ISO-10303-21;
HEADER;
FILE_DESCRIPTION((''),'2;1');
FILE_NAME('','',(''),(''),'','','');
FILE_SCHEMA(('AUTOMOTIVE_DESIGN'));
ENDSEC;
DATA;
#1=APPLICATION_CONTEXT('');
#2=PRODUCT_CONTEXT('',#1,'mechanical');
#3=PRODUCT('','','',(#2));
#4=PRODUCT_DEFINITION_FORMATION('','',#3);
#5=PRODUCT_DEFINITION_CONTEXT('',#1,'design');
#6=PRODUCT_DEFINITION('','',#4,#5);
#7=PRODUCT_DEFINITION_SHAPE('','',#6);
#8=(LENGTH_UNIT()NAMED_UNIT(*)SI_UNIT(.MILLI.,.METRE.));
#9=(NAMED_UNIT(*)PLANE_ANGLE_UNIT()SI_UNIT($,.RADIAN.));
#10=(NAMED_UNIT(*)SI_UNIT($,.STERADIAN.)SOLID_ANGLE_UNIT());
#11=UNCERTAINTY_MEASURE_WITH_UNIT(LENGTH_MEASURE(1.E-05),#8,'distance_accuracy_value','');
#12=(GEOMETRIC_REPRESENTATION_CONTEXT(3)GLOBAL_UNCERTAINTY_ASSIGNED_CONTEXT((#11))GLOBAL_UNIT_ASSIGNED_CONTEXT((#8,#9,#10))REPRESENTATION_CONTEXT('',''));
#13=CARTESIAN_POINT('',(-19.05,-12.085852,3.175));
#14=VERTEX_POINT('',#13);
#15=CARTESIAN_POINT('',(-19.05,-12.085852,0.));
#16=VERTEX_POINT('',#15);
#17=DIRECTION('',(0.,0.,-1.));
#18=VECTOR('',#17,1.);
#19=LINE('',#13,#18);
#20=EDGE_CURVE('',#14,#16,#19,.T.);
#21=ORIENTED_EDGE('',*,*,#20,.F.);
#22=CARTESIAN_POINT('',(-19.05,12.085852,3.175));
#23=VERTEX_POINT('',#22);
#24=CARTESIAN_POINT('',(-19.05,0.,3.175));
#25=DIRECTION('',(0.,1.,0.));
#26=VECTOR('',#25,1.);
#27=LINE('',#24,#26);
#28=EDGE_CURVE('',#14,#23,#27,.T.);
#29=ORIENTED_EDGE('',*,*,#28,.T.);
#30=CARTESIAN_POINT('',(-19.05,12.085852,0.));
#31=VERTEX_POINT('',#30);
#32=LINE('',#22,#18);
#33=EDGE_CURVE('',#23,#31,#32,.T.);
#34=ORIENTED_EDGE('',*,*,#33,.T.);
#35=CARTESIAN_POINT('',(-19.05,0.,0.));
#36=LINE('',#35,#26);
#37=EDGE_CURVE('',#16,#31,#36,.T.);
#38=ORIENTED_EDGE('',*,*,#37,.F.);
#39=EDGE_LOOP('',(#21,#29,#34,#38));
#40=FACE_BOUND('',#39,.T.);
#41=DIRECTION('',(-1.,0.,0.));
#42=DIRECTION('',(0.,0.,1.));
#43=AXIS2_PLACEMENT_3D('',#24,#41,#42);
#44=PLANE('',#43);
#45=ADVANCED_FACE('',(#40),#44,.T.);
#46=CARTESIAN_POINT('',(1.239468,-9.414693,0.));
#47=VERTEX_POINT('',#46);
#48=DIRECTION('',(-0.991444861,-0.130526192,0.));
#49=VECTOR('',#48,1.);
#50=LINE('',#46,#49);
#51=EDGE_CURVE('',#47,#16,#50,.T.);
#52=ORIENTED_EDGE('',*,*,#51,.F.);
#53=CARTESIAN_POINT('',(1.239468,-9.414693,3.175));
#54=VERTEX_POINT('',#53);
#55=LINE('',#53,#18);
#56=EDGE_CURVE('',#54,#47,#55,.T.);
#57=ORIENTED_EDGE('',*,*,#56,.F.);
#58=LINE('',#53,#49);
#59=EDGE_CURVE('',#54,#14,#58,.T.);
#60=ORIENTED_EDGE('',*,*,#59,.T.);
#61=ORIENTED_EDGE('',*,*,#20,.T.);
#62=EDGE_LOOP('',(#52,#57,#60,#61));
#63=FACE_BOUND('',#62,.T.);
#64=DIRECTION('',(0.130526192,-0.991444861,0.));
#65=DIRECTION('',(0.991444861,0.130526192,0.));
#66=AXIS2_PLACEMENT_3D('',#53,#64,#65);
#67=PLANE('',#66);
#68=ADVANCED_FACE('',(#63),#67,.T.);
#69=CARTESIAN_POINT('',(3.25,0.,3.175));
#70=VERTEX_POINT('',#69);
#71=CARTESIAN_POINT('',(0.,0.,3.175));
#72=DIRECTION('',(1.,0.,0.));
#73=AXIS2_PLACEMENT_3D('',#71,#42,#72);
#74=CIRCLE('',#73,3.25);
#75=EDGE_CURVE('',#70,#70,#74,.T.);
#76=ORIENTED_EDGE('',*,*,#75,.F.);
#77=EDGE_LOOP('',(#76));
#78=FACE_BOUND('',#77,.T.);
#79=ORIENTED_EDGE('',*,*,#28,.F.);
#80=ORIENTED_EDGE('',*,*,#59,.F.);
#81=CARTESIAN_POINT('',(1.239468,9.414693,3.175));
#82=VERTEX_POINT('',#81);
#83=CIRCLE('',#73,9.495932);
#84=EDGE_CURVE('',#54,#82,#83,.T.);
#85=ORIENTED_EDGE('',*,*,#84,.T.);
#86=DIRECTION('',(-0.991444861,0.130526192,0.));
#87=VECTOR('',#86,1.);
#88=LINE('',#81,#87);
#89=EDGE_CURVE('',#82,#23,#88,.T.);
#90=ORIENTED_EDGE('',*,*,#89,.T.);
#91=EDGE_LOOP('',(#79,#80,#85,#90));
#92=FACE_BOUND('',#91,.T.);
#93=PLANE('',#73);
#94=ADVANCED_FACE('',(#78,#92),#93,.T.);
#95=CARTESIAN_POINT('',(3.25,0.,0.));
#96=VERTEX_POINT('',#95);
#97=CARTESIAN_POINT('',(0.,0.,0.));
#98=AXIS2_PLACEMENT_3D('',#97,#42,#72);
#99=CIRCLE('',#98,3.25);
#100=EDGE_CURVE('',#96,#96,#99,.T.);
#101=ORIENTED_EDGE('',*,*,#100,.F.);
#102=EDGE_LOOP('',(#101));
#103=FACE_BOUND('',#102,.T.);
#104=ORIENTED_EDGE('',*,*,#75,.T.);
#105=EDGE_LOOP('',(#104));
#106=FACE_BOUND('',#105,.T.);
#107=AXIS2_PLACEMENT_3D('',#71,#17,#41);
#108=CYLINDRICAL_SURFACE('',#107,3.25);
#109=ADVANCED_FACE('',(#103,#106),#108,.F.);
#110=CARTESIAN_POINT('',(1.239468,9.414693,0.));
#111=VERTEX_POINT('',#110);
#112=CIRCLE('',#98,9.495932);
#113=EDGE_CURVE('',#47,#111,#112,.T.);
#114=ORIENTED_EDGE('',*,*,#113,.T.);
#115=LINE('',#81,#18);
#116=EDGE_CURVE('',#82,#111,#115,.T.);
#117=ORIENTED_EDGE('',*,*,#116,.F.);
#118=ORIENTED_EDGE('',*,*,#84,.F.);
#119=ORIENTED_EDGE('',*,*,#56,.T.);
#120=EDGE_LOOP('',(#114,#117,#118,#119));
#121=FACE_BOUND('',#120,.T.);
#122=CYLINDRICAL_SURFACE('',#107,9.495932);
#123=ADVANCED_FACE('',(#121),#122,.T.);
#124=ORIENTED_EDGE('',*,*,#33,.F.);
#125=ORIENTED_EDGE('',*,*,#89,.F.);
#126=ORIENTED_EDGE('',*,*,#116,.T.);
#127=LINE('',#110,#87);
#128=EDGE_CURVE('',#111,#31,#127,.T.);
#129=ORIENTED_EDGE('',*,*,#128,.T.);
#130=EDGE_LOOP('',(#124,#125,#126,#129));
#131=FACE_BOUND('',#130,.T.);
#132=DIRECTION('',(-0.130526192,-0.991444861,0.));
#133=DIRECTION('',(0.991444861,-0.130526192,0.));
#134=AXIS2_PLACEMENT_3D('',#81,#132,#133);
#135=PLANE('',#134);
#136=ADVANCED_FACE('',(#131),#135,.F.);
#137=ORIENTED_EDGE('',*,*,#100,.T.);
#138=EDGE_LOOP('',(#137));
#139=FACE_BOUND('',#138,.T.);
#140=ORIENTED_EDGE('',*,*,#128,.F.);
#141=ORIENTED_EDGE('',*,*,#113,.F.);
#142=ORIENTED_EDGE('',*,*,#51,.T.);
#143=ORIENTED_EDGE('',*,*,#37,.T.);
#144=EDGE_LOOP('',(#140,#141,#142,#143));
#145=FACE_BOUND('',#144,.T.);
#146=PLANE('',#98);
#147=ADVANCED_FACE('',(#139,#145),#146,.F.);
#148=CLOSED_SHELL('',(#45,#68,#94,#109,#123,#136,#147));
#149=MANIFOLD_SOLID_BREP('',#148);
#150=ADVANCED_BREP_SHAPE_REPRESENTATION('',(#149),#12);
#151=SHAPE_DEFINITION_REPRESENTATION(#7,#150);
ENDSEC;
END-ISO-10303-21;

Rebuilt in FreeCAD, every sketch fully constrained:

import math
import FreeCAD as App
import Part
import Sketcher

V = App.Vector
Q = App.Units.Quantity

doc = App.newDocument("Part")
body = doc.addObject("PartDesign::Body", "Body")

# Sketch on XY plane
sketch1 = doc.addObject("Sketcher::SketchObject", "Sketch")
body.addObject(sketch1)
sketch1.AttachmentSupport = (doc.XY_Plane, [""])
sketch1.MapMode = "FlatFace"
sketch1.addGeometry([
    Part.LineSegment(V(-19.1, -12.1, 0), V(1.2, -9.4, 0)),  # 0
    Part.ArcOfCircle(Part.Circle(V(0, 0, 0), V(0, 0, 1), 9.5), math.radians(-83), math.radians(83)),  # 1
    Part.LineSegment(V(1.2, 9.4, 0), V(-19.1, 12.1, 0)),  # 2
    Part.LineSegment(V(-19.1, 12.1, 0), V(-19.1, -12.1, 0)),  # 3
    Part.Circle(V(0, 0, 0), V(0, 0, 1), 3.2),  # 4
], False)
sketch1.addConstraint([
    Sketcher.Constraint("Tangent", 0, 2, 1, 1),
    Sketcher.Constraint("Tangent", 1, 2, 2, 1),
    Sketcher.Constraint("Coincident", 2, 2, 3, 1),
    Sketcher.Constraint("Coincident", 3, 2, 0, 1),
    Sketcher.Constraint("Vertical", 3),
    Sketcher.Constraint("Coincident", 1, 3, -1, 1),
    Sketcher.Constraint("Coincident", 4, 3, -1, 1),
    Sketcher.Constraint("Vertical", 0, 2, 1, 2),
    Sketcher.Constraint("Diameter", 4, 6.5),
    Sketcher.Constraint("Angle", 0, Q("7.5 deg")),
    Sketcher.Constraint("DistanceX", 2, 2, -1, 1, 19.05),
    Sketcher.Constraint("Radius", 1, 9.495932),
])
pad1 = doc.addObject("PartDesign::Pad", "Pad")
body.addObject(pad1)
pad1.Profile = sketch1
pad1.Length = 3.175

doc.recompute()
